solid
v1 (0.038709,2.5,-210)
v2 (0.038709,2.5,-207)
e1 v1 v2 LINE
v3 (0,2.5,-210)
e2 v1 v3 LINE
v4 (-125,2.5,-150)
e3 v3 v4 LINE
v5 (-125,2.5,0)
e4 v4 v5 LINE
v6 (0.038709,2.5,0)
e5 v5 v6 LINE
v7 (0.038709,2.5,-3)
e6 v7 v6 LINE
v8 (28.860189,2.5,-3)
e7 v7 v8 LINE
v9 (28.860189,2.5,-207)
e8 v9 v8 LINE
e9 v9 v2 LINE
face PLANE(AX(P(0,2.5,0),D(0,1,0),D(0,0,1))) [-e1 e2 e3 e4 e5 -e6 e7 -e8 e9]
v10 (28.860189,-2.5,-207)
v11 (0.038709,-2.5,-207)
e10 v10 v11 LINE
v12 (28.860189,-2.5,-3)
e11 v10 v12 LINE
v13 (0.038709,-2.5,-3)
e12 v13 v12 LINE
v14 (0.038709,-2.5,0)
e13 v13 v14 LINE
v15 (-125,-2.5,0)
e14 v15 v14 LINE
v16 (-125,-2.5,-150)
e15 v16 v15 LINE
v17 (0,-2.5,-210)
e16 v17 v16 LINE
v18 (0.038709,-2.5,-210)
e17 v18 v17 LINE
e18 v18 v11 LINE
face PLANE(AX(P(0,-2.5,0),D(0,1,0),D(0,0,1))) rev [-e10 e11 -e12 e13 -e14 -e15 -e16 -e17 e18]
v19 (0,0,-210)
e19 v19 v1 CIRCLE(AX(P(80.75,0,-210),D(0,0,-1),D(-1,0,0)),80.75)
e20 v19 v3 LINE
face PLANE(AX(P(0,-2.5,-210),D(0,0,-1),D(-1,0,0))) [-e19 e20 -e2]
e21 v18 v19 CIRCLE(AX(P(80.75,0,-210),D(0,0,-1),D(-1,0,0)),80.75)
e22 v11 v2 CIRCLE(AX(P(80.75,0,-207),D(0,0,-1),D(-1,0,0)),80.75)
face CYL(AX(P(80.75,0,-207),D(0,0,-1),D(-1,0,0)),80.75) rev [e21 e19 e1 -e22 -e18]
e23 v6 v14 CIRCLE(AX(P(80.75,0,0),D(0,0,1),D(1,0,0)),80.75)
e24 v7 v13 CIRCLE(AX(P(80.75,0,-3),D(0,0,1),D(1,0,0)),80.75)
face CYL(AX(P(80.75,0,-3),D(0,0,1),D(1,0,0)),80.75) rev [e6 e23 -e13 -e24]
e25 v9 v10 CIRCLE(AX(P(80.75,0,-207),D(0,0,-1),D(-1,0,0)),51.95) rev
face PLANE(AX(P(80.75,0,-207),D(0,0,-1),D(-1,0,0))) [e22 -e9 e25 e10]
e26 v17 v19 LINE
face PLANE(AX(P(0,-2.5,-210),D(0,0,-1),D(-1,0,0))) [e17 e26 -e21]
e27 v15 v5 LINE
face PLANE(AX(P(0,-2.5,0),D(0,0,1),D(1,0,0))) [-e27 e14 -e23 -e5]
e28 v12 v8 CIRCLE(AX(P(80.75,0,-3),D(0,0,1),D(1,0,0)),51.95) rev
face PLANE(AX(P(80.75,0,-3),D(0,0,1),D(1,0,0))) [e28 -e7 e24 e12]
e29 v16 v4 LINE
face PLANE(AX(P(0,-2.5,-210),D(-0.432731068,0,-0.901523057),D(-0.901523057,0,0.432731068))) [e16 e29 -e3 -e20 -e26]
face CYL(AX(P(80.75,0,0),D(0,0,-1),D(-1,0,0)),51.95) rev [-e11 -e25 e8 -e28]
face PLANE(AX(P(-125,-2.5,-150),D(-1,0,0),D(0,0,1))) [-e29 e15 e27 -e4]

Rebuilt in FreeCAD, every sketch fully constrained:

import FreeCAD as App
import Part
import Sketcher
from FreeCAD import Vector
Q = App.Units.Quantity


def add_polygon(sketch, points):
    """Adds a closed chain of lines whose ends are joined by coincident constraints."""
    first, n = sketch.GeometryCount, len(points)
    for a, b in zip(points, points[1:] + points[:1]):
        sketch.addGeometry(Part.LineSegment(App.Vector(*a, 0), App.Vector(*b, 0)), False)
    for i in range(n):
        sketch.addConstraint(Sketcher.Constraint("Coincident", first + i, 2, first + (i + 1) % n, 1))

doc = App.newDocument("Part")
body = doc.addObject("PartDesign::Body", "Body")

# Sketch on XZ plane
sketch1 = body.newObject("Sketcher::SketchObject", "Sketch")
sketch1.AttachmentSupport = (doc.getObject("XZ_Plane"), [""])
sketch1.MapMode = "FlatFace"
add_polygon(sketch1, [(-125, -150), (-125, 0), (81, 0), (81, -210), (0, -210)])  # lines 0-4
sketch1.addConstraint(Sketcher.Constraint("Vertical", 0))
sketch1.addConstraint(Sketcher.Constraint("Horizontal", 1))
sketch1.addConstraint(Sketcher.Constraint("Vertical", 2))
sketch1.addConstraint(Sketcher.Constraint("Horizontal", 3))
sketch1.addConstraint(Sketcher.Constraint("PointOnObject", 0, 2, -1))
sketch1.addConstraint(Sketcher.Constraint("PointOnObject", 3, 2, -2))
sketch1.addConstraint(Sketcher.Constraint("DistanceY", 0, 1, 0, 2, Q("150 mm")))
sketch1.addConstraint(Sketcher.Constraint("DistanceY", 2, 2, 2, 1, Q("210 mm")))
sketch1.addConstraint(Sketcher.Constraint("DistanceX", 0, 2, -1, 1, Q("125 mm")))
sketch1.addConstraint(Sketcher.Constraint("DistanceX", 1, 1, 1, 2, Q("205.75 mm")))
pad1 = body.newObject("PartDesign::Pad", "Pad")
pad1.Profile = sketch1
pad1.Type = "TwoLengths"
pad1.Length = 2.5
pad1.Length2 = 2.5
pad1.Reversed = True

# Sketch on XY plane
sketch2 = body.newObject("Sketcher::SketchObject", "Sketch001")
sketch2.AttachmentSupport = (doc.getObject("XY_Plane"), [""])
sketch2.MapMode = "FlatFace"
sketch2.AttachmentOffset = App.Placement(Vector(0, 0, -210), App.Rotation())
sketch2.addGeometry(Part.Circle(Vector(81, 0, 0), Vector(0, 0, 1), 52), False)
sketch2.addConstraint(Sketcher.Constraint("PointOnObject", 0, 3, -1))
sketch2.addConstraint(Sketcher.Constraint("Diameter", 0, Q("103.9 mm")))
sketch2.addConstraint(Sketcher.Constraint("DistanceX", -1, 1, 0, 3, Q("80.75 mm")))
pocket1 = body.newObject("PartDesign::Pocket", "Pocket")
pocket1.Profile = sketch2
pocket1.Type = "ThroughAll"
pocket1.Reversed = True

# Sketch on XY plane
sketch3 = body.newObject("Sketcher::SketchObject", "Sketch002")
sketch3.AttachmentSupport = (doc.getObject("XY_Plane"), [""])
sketch3.MapMode = "FlatFace"
sketch3.AttachmentOffset = App.Placement(Vector(0, 0, -210), App.Rotation())
sketch3.addGeometry(Part.Circle(Vector(81, 0, 0), Vector(0, 0, 1), 81), False)
sketch3.addConstraint(Sketcher.Constraint("PointOnObject", 0, 3, -1))
sketch3.addConstraint(Sketcher.Constraint("Diameter", 0, Q("161.5 mm")))
sketch3.addConstraint(Sketcher.Constraint("DistanceX", -1, 1, 0, 3, Q("80.75 mm")))
pocket2 = body.newObject("PartDesign::Pocket", "Pocket001")
pocket2.Profile = sketch3
pocket2.Length = 3
pocket2.Reversed = True

# Sketch on XY plane
sketch4 = body.newObject("Sketcher::SketchObject", "Sketch003")
sketch4.AttachmentSupport = (doc.getObject("XY_Plane"), [""])
sketch4.MapMode = "FlatFace"
sketch4.AttachmentOffset = App.Placement(Vector(0, 0, -3), App.Rotation())
sketch4.addGeometry(Part.Circle(Vector(81, 0, 0), Vector(0, 0, 1), 81), False)
sketch4.addConstraint(Sketcher.Constraint("PointOnObject", 0, 3, -1))
sketch4.addConstraint(Sketcher.Constraint("Diameter", 0, Q("161.5 mm")))
sketch4.addConstraint(Sketcher.Constraint("DistanceX", -1, 1, 0, 3, Q("80.75 mm")))
pocket3 = body.newObject("PartDesign::Pocket", "Pocket002")
pocket3.Profile = sketch4
pocket3.Length = 3
pocket3.Reversed = True

doc.recompute()
